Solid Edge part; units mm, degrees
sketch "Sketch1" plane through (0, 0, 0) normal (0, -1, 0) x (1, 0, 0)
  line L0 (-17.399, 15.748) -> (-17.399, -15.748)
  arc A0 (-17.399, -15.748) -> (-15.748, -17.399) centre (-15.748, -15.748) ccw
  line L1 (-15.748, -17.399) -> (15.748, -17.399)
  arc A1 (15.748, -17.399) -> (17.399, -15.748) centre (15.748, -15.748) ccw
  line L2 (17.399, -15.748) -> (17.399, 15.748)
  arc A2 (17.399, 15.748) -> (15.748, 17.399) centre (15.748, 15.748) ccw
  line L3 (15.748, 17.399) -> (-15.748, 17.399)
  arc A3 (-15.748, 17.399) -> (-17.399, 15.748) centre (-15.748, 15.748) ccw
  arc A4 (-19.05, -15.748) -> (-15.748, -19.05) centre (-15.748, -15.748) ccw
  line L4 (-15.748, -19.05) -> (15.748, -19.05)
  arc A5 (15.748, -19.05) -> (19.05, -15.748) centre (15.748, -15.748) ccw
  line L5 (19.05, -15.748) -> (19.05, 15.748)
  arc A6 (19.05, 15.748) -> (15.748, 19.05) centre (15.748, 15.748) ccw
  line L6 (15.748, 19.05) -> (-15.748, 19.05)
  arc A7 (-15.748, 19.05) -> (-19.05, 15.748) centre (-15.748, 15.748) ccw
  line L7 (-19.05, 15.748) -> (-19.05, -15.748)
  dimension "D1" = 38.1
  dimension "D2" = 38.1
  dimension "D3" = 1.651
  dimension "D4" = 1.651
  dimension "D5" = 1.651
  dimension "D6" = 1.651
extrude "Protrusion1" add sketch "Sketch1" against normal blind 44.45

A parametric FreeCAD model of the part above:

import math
import FreeCAD as App
import Part
import Sketcher
Q = App.Units.Quantity

doc = App.newDocument("Part")
body = doc.addObject("PartDesign::Body", "Body")

# Sketch on XZ plane
sketch1 = doc.addObject("Sketcher::SketchObject", "Sketch")
body.addObject(sketch1)
sketch1.AttachmentSupport = (doc.XZ_Plane, [""])
sketch1.MapMode = "FlatFace"
sketch1.addGeometry([
    Part.LineSegment(App.Vector(-19.1, 15.7, 0), App.Vector(-19.1, -15.7, 0)),  # 0
    Part.ArcOfCircle(Part.Circle(App.Vector(-15.7, -15.7, 0), App.Vector(0, 0, 1), 3.3), math.radians(180), math.radians(270)),  # 1
    Part.LineSegment(App.Vector(-15.7, -19.1, 0), App.Vector(15.7, -19.1, 0)),  # 2
    Part.ArcOfCircle(Part.Circle(App.Vector(15.7, -15.7, 0), App.Vector(0, 0, 1), 3.3), math.radians(-90), math.radians(0)),  # 3
    Part.LineSegment(App.Vector(19.1, -15.7, 0), App.Vector(19.1, 15.7, 0)),  # 4
    Part.ArcOfCircle(Part.Circle(App.Vector(15.7, 15.7, 0), App.Vector(0, 0, 1), 3.3), math.radians(0), math.radians(90)),  # 5
    Part.LineSegment(App.Vector(15.7, 19.1, 0), App.Vector(-15.7, 19.1, 0)),  # 6
    Part.ArcOfCircle(Part.Circle(App.Vector(-15.7, 15.7, 0), App.Vector(0, 0, 1), 3.3), math.radians(90), math.radians(180)),  # 7
    Part.LineSegment(App.Vector(-17.4, -15.7, 0), App.Vector(-17.4, 15.7, 0)),  # 8
    Part.ArcOfCircle(Part.Circle(App.Vector(-15.7, 15.7, 0), App.Vector(0, 0, 1), 1.7), math.radians(90), math.radians(180)),  # 9
    Part.LineSegment(App.Vector(-15.7, 17.4, 0), App.Vector(15.7, 17.4, 0)),  # 10
    Part.ArcOfCircle(Part.Circle(App.Vector(15.7, 15.7, 0), App.Vector(0, 0, 1), 1.7), math.radians(0), math.radians(90)),  # 11
    Part.LineSegment(App.Vector(17.4, 15.7, 0), App.Vector(17.4, -15.7, 0)),  # 12
    Part.ArcOfCircle(Part.Circle(App.Vector(15.7, -15.7, 0), App.Vector(0, 0, 1), 1.7), math.radians(-90), math.radians(0)),  # 13
    Part.LineSegment(App.Vector(15.7, -17.4, 0), App.Vector(-15.7, -17.4, 0)),  # 14
    Part.ArcOfCircle(Part.Circle(App.Vector(-15.7, -15.7, 0), App.Vector(0, 0, 1), 1.7), math.radians(180), math.radians(270)),  # 15
], False)
sketch1.addConstraint([
    Sketcher.Constraint("Tangent", 0, 2, 1, 1),
    Sketcher.Constraint("Tangent", 1, 2, 2, 1),
    Sketcher.Constraint("Tangent", 2, 2, 3, 1),
    Sketcher.Constraint("Tangent", 3, 2, 4, 1),
    Sketcher.Constraint("Tangent", 4, 2, 5, 1),
    Sketcher.Constraint("Tangent", 5, 2, 6, 1),
    Sketcher.Constraint("Tangent", 6, 2, 7, 1),
    Sketcher.Constraint("Tangent", 7, 2, 0, 1),
    Sketcher.Constraint("Tangent", 8, 2, 9, 2),
    Sketcher.Constraint("Tangent", 9, 1, 10, 1),
    Sketcher.Constraint("Tangent", 10, 2, 11, 2),
    Sketcher.Constraint("Tangent", 11, 1, 12, 1),
    Sketcher.Constraint("Tangent", 12, 2, 13, 2),
    Sketcher.Constraint("Tangent", 13, 1, 14, 1),
    Sketcher.Constraint("Tangent", 14, 2, 15, 2),
    Sketcher.Constraint("Tangent", 15, 1, 8, 1),
    Sketcher.Constraint("Vertical", 0),
    Sketcher.Constraint("Horizontal", 2),
    Sketcher.Constraint("Vertical", 4),
    Sketcher.Constraint("Horizontal", 6),
    Sketcher.Constraint("Vertical", 8),
    Sketcher.Constraint("Horizontal", 10),
    Sketcher.Constraint("Vertical", 12),
    Sketcher.Constraint("Horizontal", 14),
    Sketcher.Constraint("Coincident", 9, 3, 7, 3),
    Sketcher.Constraint("Coincident", 11, 3, 5, 3),
    Sketcher.Constraint("Coincident", 13, 3, 3, 3),
    Sketcher.Constraint("Equal", 1, 3),
    Sketcher.Constraint("Equal", 3, 5),
    Sketcher.Constraint("Equal", 5, 7),
    Sketcher.Constraint("Equal", 13, 15),
    Sketcher.Constraint("Symmetric", 1, 3, 5, 3, -1, 1),
    Sketcher.Constraint("Equal", 14, 0),
    Sketcher.Constraint("Radius", 1, Q("0.13 in")),
    Sketcher.Constraint("Radius", 9, Q("0.065 in")),
    Sketcher.Constraint("DistanceX", 2, 1, 2, 2, Q("1.24 in")),
])
pad1 = doc.addObject("PartDesign::Pad", "Pad")
body.addObject(pad1)
pad1.Profile = sketch1
pad1.Length = Q("1.75 in")
pad1.Reversed = True

doc.recompute()
